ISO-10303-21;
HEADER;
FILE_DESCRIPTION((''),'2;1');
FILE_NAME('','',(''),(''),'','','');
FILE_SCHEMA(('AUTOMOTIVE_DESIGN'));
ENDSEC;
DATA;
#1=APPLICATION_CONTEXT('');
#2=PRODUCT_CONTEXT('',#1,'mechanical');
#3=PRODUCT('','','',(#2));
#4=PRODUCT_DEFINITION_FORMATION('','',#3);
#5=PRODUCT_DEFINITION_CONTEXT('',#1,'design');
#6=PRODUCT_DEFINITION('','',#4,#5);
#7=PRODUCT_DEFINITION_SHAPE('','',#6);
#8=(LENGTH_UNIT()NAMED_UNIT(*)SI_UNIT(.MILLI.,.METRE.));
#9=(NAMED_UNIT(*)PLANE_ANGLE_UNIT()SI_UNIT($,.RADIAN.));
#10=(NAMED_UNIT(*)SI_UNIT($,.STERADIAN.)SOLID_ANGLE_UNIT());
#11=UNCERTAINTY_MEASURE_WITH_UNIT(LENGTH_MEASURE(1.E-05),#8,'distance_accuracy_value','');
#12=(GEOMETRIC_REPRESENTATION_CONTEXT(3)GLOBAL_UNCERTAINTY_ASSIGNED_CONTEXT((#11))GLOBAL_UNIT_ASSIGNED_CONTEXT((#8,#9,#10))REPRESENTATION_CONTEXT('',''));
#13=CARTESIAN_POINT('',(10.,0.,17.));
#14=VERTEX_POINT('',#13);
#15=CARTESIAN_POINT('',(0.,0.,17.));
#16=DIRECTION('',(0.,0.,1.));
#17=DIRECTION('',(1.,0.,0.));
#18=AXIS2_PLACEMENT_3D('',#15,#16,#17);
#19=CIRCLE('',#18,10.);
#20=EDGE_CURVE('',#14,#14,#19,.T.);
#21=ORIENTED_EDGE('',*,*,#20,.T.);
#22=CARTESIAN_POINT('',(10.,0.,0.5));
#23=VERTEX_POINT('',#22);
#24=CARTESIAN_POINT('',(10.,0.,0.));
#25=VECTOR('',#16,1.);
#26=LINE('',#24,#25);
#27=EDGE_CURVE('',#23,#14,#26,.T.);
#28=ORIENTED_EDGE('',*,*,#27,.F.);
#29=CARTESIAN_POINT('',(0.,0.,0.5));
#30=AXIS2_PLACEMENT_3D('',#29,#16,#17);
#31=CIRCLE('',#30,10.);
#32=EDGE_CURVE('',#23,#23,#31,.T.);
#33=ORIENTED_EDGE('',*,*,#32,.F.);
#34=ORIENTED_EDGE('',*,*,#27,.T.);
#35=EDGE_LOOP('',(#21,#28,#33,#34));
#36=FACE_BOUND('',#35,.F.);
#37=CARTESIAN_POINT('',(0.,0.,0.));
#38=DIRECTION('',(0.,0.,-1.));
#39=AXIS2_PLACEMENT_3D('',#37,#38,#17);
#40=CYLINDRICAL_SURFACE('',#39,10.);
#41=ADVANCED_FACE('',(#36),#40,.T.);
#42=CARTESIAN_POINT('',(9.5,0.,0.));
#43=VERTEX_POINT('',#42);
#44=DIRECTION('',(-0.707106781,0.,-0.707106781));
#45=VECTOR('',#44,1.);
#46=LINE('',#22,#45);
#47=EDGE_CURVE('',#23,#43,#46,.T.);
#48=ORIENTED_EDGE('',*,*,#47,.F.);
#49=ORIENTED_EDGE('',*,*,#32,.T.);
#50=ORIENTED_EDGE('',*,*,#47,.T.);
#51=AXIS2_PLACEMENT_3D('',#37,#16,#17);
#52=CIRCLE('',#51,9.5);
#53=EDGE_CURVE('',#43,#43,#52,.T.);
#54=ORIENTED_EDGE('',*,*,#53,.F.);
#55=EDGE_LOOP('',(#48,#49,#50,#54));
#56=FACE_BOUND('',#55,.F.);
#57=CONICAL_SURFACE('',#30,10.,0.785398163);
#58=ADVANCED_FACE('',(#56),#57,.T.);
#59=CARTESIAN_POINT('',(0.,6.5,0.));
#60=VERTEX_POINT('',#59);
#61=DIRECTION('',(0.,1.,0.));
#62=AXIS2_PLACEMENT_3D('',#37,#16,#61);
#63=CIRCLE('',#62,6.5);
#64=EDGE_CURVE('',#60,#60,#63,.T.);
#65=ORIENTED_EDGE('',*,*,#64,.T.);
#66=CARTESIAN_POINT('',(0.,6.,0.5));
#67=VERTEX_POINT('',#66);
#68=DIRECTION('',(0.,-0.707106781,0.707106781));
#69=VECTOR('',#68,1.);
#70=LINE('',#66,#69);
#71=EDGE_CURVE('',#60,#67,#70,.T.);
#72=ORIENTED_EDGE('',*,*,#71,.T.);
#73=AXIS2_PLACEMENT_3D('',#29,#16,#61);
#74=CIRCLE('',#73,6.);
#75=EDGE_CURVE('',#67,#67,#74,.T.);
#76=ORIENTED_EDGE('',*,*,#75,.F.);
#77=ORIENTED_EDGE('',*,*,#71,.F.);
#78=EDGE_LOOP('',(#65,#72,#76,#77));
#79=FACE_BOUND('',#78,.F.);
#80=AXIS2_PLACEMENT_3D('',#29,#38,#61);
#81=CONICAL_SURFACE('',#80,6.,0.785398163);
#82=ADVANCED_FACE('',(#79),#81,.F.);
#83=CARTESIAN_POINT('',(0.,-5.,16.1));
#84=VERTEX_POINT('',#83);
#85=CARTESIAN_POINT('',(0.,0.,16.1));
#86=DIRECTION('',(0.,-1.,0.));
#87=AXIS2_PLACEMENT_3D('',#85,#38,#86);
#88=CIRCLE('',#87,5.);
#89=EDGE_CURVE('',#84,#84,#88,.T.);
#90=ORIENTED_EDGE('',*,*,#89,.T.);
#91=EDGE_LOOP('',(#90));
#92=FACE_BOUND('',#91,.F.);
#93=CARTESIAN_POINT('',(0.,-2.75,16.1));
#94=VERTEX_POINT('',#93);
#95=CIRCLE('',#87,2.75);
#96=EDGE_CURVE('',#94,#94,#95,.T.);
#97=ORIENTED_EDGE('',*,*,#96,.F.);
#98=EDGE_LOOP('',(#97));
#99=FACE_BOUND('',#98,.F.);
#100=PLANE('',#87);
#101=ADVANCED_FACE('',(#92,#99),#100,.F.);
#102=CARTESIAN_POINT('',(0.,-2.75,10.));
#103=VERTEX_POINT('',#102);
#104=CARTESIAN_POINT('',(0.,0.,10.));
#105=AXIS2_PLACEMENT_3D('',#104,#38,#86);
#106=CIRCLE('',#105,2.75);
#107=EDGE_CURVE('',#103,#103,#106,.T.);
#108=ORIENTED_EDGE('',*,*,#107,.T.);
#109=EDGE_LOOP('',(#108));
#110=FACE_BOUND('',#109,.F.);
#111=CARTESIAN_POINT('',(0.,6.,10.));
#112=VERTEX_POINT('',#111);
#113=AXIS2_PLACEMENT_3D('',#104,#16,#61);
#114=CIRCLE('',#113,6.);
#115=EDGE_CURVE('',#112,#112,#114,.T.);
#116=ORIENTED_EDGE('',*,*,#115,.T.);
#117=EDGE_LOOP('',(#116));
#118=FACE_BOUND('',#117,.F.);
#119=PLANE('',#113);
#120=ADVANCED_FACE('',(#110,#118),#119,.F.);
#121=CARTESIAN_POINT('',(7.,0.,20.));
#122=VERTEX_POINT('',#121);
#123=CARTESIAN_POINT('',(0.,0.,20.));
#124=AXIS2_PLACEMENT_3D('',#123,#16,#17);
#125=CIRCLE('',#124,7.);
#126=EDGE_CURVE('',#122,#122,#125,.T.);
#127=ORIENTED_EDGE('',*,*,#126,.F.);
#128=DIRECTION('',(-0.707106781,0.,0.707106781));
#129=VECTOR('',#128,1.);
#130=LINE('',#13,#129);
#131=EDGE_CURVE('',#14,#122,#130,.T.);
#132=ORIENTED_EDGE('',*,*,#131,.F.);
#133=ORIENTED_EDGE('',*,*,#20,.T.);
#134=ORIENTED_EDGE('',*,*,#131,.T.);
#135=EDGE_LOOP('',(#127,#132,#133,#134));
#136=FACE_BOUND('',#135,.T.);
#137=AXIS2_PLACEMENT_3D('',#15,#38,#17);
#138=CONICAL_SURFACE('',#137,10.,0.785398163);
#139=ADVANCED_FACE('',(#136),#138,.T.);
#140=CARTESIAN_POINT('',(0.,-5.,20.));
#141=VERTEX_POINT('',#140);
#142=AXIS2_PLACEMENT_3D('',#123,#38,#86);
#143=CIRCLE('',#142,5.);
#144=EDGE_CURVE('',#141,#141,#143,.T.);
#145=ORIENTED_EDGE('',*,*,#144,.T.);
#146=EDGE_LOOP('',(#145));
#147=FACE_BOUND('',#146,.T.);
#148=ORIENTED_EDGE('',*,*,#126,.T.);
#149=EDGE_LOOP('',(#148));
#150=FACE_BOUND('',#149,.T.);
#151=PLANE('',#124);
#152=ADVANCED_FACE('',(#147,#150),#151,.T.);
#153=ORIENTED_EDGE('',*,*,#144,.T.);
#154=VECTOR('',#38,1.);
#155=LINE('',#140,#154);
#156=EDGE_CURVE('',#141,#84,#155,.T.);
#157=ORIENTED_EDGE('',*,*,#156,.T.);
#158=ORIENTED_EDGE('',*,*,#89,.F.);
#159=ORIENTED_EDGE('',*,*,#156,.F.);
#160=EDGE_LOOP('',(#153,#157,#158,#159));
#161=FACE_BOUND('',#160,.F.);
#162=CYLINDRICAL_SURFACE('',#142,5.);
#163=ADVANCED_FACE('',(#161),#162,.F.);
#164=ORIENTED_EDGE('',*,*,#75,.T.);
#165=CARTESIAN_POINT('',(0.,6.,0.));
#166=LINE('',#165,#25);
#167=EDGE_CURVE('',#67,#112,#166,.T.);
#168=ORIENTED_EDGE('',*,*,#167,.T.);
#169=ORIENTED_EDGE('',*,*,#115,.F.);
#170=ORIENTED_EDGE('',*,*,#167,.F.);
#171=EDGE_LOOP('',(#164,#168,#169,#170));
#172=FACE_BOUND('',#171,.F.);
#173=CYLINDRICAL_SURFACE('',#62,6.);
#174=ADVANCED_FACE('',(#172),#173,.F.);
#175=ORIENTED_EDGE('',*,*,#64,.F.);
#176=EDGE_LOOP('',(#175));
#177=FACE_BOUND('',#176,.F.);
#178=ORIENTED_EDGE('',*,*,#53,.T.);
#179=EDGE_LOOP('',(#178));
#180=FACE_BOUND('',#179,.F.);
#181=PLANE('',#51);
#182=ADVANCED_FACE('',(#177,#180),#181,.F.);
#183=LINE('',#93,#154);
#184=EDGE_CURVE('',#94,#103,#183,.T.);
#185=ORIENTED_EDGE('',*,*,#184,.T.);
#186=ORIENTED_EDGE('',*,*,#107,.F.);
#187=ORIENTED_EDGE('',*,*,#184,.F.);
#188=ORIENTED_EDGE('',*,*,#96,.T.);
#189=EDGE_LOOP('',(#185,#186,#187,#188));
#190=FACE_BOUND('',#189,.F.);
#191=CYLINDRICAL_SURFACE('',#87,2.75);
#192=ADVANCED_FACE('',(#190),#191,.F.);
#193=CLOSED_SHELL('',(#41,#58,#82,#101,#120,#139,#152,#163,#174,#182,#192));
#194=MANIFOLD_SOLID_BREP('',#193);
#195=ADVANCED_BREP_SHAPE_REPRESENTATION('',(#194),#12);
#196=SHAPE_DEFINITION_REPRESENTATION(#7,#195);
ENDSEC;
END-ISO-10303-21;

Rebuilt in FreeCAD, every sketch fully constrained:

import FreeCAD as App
import Part
import Sketcher


def edges_at(feature, points):
    """Names of the edges that pass closest to the given points."""
    edges = feature.Shape.Edges
    near = lambda p: min(range(len(edges)), key=lambda i: edges[i].distToShape(Part.Vertex(*p))[0])
    return sorted({f"Edge{near(p) + 1}" for p in points})

doc = App.newDocument("Part")
params = doc.addObject("Spreadsheet::Sheet", "Params")
for row, (alias, value) in enumerate([
    ("sketch1_diameter", "20 mm"),
    ("pad1_length", "20 mm"),
    ("sketch2_diameter", "12 mm"),
    ("hole_diameter", "12 mm"),
    ("hole_depth", "10 mm"),
    ("sketch3_diameter", "5.5 mm"),
    ("hole2_diameter", "5.5 mm"),
    ("hole2_cbore_diameter", "10 mm"),
    ("hole2_cbore_depth", "3.9 mm"),
    ("chamfer_size", "3 mm"),
    ("chamfer2_size", "0.5 mm"),
], start=1):
    params.set(f"A{row}", alias)
    params.set(f"B{row}", "=" + value)
    params.setAlias(f"B{row}", alias)

body = doc.addObject("PartDesign::Body", "Body")

sketch1 = doc.addObject("Sketcher::SketchObject", "Sketch")
body.addObject(sketch1)
sketch1.AttachmentSupport = (doc.XY_Plane, [""])
sketch1.MapMode = "FlatFace"
sketch1.addGeometry(Part.Circle(App.Vector(0, 0, 0), App.Vector(0, 0, 1), 10), False)
sketch1.addConstraint([
    Sketcher.Constraint("Coincident", 0, 3, -1, 1),
    Sketcher.Constraint("Diameter", 0, 20.0),
])
sketch1.setExpression("Constraints[1]", "Params.sketch1_diameter")
pad1 = doc.addObject("PartDesign::Pad", "Pad")
body.addObject(pad1)
pad1.Profile = sketch1
pad1.setExpression("Length", "Params.pad1_length")

sketch2 = doc.addObject("Sketcher::SketchObject", "Sketch001")
body.addObject(sketch2)
sketch2.AttachmentSupport = (doc.XY_Plane, [""])
sketch2.MapMode = "FlatFace"
sketch2.addGeometry(Part.Circle(App.Vector(0, 0, 0), App.Vector(0, 0, 1), 6), False)
sketch2.addConstraint([
    Sketcher.Constraint("Coincident", 0, 3, -1, 1),
    Sketcher.Constraint("Diameter", 0, 12.0),
])
sketch2.setExpression("Constraints[1]", "Params.sketch2_diameter")
doc.recompute()
hole = doc.addObject("PartDesign::Hole", "Hole")
body.addObject(hole)
hole.Profile = sketch2
hole.ThreadType = "None"
hole.setExpression("Diameter", "Params.hole_diameter")
hole.DepthType = "Dimension"
hole.setExpression("Depth", "Params.hole_depth")
hole.DrillPoint = "Flat"
hole.Reversed = True

sketch3 = doc.addObject("Sketcher::SketchObject", "Sketch002")
body.addObject(sketch3)
sketch3.AttachmentSupport = (doc.XY_Plane, [""])
sketch3.MapMode = "FlatFace"
sketch3.AttachmentOffset = App.Placement(App.Vector(0, 0, 20), App.Rotation())
sketch3.addGeometry(Part.Circle(App.Vector(0, 0, 0), App.Vector(0, 0, 1), 2.75), False)
sketch3.addConstraint([
    Sketcher.Constraint("Coincident", 0, 3, -1, 1),
    Sketcher.Constraint("Diameter", 0, 5.5),
])
sketch3.setExpression("Constraints[1]", "Params.sketch3_diameter")
doc.recompute()
hole2 = doc.addObject("PartDesign::Hole", "Hole001")
body.addObject(hole2)
hole2.Profile = sketch3
hole2.ThreadType = "None"
hole2.setExpression("Diameter", "Params.hole2_diameter")
hole2.DepthType = "ThroughAll"
hole2.HoleCutType = "Counterbore"
hole2.setExpression("HoleCutDiameter", "Params.hole2_cbore_diameter")
hole2.setExpression("HoleCutDepth", "Params.hole2_cbore_depth")
doc.recompute()

chamfer = doc.addObject("PartDesign::Chamfer", "Chamfer")
body.addObject(chamfer)
chamfer.Base = (hole2, edges_at(hole2, [(-10, 0, 20)]))
chamfer.setExpression("Size", "Params.chamfer_size")
doc.recompute()

chamfer2 = doc.addObject("PartDesign::Chamfer", "Chamfer001")
body.addObject(chamfer2)
chamfer2.Base = (chamfer, edges_at(chamfer, [(0, -6, 0), (-10, 0, 0)]))
chamfer2.setExpression("Size", "Params.chamfer2_size")

doc.recompute()
